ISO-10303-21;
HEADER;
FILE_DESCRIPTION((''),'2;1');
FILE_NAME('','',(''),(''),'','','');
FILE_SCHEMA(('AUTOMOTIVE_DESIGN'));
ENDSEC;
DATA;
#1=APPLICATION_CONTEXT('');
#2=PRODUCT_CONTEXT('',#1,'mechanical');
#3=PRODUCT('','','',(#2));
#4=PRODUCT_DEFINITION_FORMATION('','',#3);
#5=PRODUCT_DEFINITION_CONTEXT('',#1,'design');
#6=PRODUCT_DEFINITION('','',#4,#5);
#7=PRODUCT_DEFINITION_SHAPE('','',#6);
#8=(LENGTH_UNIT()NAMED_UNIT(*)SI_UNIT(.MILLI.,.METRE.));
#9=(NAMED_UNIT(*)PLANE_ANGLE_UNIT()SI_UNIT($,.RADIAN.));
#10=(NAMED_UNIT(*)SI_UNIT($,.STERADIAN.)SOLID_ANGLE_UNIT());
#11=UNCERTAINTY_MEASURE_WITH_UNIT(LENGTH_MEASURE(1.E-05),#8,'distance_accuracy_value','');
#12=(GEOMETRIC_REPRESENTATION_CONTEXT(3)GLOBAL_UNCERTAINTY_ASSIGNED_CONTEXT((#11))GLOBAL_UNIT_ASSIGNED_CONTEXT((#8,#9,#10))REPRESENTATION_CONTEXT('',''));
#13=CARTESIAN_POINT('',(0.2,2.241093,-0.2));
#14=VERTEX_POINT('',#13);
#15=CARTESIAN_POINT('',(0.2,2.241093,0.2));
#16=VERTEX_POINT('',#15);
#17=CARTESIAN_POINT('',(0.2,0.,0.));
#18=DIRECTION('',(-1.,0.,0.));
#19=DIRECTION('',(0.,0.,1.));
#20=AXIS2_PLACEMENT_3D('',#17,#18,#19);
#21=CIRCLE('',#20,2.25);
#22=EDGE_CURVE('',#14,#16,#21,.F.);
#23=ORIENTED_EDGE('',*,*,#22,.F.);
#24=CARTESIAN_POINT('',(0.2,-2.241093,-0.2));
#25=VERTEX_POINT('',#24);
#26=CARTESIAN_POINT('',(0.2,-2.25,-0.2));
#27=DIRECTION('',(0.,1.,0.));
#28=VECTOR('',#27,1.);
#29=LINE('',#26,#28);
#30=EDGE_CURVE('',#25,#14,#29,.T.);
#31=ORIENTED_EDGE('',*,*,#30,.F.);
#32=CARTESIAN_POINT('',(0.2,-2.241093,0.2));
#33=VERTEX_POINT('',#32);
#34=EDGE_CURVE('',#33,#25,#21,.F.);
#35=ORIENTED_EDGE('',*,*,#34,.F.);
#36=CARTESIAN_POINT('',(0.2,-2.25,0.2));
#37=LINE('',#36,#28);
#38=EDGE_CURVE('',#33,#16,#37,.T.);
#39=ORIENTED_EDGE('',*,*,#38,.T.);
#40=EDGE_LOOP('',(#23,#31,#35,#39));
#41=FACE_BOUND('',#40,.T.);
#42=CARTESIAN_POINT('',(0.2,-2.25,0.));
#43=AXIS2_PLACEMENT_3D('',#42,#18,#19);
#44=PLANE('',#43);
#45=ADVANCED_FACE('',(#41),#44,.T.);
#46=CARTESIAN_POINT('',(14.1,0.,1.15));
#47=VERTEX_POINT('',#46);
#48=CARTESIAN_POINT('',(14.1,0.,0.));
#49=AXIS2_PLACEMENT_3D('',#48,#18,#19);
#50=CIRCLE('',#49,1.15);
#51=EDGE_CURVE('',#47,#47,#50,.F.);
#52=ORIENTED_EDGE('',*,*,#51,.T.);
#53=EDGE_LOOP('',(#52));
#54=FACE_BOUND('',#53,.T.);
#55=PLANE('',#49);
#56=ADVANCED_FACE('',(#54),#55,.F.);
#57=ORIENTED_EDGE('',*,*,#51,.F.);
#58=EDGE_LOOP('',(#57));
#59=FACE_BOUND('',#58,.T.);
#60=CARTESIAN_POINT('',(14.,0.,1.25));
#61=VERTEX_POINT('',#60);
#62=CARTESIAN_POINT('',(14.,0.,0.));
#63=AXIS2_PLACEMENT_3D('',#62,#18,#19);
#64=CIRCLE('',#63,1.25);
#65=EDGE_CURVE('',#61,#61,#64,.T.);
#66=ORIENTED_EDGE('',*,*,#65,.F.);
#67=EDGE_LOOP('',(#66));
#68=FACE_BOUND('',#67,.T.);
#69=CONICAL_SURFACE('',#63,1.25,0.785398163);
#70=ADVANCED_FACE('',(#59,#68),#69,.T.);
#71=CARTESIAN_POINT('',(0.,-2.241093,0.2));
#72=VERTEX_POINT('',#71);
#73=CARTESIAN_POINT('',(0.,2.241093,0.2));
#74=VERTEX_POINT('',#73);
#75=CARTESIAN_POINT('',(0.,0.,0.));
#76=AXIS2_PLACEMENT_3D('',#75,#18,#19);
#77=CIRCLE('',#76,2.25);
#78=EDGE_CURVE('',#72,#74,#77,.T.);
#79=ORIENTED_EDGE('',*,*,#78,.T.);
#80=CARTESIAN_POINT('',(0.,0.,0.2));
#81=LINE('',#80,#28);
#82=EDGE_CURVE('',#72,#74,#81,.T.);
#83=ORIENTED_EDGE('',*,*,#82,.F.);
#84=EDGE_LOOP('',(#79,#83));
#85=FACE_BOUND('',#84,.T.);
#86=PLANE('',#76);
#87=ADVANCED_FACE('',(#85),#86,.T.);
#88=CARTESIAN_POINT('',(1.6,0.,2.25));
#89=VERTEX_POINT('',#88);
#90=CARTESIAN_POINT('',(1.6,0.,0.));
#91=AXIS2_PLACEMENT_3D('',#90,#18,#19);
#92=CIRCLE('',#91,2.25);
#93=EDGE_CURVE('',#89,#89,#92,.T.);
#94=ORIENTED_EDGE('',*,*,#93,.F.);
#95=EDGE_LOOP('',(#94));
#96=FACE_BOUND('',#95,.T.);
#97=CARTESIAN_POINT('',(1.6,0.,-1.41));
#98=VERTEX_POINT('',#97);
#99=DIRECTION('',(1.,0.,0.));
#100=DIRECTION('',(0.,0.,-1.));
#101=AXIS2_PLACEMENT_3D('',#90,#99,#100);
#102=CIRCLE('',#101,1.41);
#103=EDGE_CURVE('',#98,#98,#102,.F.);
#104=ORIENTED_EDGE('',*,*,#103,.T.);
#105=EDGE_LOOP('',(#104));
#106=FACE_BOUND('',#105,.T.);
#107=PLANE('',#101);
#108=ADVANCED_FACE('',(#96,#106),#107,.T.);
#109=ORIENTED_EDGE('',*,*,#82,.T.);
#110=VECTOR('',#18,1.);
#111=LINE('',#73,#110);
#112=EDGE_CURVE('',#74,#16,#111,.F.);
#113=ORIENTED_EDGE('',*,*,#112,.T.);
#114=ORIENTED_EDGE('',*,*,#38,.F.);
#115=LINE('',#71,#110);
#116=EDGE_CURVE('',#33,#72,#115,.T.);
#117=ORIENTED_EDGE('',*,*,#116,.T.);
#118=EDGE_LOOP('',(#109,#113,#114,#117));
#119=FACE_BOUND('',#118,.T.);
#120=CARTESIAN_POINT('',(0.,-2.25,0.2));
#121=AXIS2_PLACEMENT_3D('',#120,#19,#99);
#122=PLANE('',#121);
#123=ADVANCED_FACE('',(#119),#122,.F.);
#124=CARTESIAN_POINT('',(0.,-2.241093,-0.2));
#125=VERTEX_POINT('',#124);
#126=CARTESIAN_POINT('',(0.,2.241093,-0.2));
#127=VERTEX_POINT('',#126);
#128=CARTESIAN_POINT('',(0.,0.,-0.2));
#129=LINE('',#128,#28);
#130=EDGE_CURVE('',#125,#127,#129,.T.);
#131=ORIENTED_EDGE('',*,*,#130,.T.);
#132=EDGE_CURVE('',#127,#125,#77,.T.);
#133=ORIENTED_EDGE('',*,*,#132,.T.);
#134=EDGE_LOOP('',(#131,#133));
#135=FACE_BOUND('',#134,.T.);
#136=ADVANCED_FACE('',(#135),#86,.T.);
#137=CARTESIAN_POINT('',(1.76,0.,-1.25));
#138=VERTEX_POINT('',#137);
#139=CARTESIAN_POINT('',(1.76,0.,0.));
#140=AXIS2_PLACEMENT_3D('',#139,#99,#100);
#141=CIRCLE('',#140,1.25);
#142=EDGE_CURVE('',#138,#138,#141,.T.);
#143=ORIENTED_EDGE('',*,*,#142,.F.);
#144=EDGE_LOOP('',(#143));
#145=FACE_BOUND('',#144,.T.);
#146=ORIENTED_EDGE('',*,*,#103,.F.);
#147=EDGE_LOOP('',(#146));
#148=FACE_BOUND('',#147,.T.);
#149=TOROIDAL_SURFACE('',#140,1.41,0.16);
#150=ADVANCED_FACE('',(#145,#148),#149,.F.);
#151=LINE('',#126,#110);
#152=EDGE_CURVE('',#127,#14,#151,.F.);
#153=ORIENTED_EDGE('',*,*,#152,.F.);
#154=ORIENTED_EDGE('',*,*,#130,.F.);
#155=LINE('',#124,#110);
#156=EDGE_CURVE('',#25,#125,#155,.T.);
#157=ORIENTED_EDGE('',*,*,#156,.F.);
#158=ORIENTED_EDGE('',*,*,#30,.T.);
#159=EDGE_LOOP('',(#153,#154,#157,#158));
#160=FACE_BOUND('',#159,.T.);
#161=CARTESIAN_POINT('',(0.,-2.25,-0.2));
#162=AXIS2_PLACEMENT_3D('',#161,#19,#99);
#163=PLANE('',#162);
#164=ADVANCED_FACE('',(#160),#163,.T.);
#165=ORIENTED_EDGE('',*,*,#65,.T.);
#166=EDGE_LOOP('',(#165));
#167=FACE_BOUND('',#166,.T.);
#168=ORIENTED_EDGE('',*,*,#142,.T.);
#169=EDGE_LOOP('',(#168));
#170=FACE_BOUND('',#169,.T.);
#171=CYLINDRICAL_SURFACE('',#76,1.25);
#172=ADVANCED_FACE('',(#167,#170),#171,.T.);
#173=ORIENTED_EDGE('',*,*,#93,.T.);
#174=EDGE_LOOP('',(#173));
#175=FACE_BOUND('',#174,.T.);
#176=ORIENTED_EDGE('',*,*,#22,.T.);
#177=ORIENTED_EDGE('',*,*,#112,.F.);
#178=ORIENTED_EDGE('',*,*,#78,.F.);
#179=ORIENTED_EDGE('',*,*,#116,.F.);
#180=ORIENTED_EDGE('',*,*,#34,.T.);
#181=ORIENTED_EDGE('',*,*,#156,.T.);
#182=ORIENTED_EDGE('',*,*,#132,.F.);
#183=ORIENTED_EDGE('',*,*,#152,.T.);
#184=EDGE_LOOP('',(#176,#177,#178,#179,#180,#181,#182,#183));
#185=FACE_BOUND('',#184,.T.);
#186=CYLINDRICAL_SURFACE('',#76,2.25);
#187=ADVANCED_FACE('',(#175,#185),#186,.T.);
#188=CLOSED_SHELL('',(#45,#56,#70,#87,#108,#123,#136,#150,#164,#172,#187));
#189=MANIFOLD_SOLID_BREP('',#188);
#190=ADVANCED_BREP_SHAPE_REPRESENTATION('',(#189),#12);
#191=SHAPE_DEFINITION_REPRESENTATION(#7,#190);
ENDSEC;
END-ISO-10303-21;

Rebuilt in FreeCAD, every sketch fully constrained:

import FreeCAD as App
import Part
import Sketcher
from FreeCAD import Vector


def edges_at(feature, points):
    """Names of the edges that pass closest to the given points."""
    edges = feature.Shape.Edges
    near = lambda p: min(range(len(edges)), key=lambda i: edges[i].distToShape(Part.Vertex(*p))[0])
    return sorted({f"Edge{near(p) + 1}" for p in points})


def add_polygon(sketch, points):
    """Adds a closed chain of lines whose ends are joined by coincident constraints."""
    first, n = sketch.GeometryCount, len(points)
    for a, b in zip(points, points[1:] + points[:1]):
        sketch.addGeometry(Part.LineSegment(App.Vector(*a, 0), App.Vector(*b, 0)), False)
    for i in range(n):
        sketch.addConstraint(Sketcher.Constraint("Coincident", first + i, 2, first + (i + 1) % n, 1))

doc = App.newDocument("Part")
body = doc.addObject("PartDesign::Body", "Body")

# Sketch on XY plane
sketch1 = body.newObject("Sketcher::SketchObject", "Sketch")
sketch1.AttachmentSupport = (doc.getObject("XY_Plane"), [""])
sketch1.MapMode = "FlatFace"
add_polygon(sketch1, [(0, 2.25), (0, 0), (14.1, 0), (14.1, 1.25), (1.6, 1.25), (1.6, 2.25)])  # lines 0-5
sketch1.addConstraint(Sketcher.Constraint("Vertical", 0))
sketch1.addConstraint(Sketcher.Constraint("Horizontal", 1))
sketch1.addConstraint(Sketcher.Constraint("Vertical", 2))
sketch1.addConstraint(Sketcher.Constraint("Horizontal", 3))
sketch1.addConstraint(Sketcher.Constraint("Vertical", 4))
sketch1.addConstraint(Sketcher.Constraint("Horizontal", 5))
sketch1.addConstraint(Sketcher.Constraint("Coincident", 0, 2, -1, 1))
sketch1.addConstraint(Sketcher.Constraint("DistanceY", 4, 1, 4, 2, 1.0))
sketch1.addConstraint(Sketcher.Constraint("DistanceX", 1, 1, 1, 2, 14.1))
sketch1.addConstraint(Sketcher.Constraint("DistanceX", 3, 2, 3, 1, 12.5))
sketch1.addConstraint(Sketcher.Constraint("DistanceY", 0, 2, 0, 1, 2.25))
revolution = body.newObject("PartDesign::Revolution", "Revolution")
revolution.Profile = sketch1
revolution.ReferenceAxis = (sketch1, ["H_Axis"])
revolution.Angle = 360
doc.recompute()

chamfer = body.newObject("PartDesign::Chamfer", "Chamfer")
chamfer.Base = (revolution, edges_at(revolution, [(14.1, 0, -1.25)]))
chamfer.Size = 0.1
doc.recompute()

fillet = body.newObject("PartDesign::Fillet", "Fillet")
fillet.Base = (chamfer, edges_at(chamfer, [(1.6, 0, -1.25)]))
fillet.Radius = 0.16

# Sketch on XZ plane
sketch2 = body.newObject("Sketcher::SketchObject", "Sketch001")
sketch2.AttachmentSupport = (doc.getObject("XZ_Plane"), [""])
sketch2.MapMode = "FlatFace"
add_polygon(sketch2, [(0, 0.2), (0.2, 0.2), (0.2, -0.2), (0, -0.2)])  # lines 0-3
sketch2.addConstraint(Sketcher.Constraint("Horizontal", 0))
sketch2.addConstraint(Sketcher.Constraint("Vertical", 1))
sketch2.addConstraint(Sketcher.Constraint("Horizontal", 2))
sketch2.addConstraint(Sketcher.Constraint("Vertical", 3))
sketch2.addConstraint(Sketcher.Constraint("Symmetric", 2, 2, 3, 2, -1, 1))
sketch2.addConstraint(Sketcher.Constraint("DistanceX", 0, 1, 0, 2, 0.2))
sketch2.addConstraint(Sketcher.Constraint("DistanceY", 1, 2, 1, 1, 0.4))
pocket1 = body.newObject("PartDesign::Pocket", "Pocket")
pocket1.Profile = sketch2
pocket1.Type = "ThroughAll"
pocket1.Midplane = True

doc.recompute()
